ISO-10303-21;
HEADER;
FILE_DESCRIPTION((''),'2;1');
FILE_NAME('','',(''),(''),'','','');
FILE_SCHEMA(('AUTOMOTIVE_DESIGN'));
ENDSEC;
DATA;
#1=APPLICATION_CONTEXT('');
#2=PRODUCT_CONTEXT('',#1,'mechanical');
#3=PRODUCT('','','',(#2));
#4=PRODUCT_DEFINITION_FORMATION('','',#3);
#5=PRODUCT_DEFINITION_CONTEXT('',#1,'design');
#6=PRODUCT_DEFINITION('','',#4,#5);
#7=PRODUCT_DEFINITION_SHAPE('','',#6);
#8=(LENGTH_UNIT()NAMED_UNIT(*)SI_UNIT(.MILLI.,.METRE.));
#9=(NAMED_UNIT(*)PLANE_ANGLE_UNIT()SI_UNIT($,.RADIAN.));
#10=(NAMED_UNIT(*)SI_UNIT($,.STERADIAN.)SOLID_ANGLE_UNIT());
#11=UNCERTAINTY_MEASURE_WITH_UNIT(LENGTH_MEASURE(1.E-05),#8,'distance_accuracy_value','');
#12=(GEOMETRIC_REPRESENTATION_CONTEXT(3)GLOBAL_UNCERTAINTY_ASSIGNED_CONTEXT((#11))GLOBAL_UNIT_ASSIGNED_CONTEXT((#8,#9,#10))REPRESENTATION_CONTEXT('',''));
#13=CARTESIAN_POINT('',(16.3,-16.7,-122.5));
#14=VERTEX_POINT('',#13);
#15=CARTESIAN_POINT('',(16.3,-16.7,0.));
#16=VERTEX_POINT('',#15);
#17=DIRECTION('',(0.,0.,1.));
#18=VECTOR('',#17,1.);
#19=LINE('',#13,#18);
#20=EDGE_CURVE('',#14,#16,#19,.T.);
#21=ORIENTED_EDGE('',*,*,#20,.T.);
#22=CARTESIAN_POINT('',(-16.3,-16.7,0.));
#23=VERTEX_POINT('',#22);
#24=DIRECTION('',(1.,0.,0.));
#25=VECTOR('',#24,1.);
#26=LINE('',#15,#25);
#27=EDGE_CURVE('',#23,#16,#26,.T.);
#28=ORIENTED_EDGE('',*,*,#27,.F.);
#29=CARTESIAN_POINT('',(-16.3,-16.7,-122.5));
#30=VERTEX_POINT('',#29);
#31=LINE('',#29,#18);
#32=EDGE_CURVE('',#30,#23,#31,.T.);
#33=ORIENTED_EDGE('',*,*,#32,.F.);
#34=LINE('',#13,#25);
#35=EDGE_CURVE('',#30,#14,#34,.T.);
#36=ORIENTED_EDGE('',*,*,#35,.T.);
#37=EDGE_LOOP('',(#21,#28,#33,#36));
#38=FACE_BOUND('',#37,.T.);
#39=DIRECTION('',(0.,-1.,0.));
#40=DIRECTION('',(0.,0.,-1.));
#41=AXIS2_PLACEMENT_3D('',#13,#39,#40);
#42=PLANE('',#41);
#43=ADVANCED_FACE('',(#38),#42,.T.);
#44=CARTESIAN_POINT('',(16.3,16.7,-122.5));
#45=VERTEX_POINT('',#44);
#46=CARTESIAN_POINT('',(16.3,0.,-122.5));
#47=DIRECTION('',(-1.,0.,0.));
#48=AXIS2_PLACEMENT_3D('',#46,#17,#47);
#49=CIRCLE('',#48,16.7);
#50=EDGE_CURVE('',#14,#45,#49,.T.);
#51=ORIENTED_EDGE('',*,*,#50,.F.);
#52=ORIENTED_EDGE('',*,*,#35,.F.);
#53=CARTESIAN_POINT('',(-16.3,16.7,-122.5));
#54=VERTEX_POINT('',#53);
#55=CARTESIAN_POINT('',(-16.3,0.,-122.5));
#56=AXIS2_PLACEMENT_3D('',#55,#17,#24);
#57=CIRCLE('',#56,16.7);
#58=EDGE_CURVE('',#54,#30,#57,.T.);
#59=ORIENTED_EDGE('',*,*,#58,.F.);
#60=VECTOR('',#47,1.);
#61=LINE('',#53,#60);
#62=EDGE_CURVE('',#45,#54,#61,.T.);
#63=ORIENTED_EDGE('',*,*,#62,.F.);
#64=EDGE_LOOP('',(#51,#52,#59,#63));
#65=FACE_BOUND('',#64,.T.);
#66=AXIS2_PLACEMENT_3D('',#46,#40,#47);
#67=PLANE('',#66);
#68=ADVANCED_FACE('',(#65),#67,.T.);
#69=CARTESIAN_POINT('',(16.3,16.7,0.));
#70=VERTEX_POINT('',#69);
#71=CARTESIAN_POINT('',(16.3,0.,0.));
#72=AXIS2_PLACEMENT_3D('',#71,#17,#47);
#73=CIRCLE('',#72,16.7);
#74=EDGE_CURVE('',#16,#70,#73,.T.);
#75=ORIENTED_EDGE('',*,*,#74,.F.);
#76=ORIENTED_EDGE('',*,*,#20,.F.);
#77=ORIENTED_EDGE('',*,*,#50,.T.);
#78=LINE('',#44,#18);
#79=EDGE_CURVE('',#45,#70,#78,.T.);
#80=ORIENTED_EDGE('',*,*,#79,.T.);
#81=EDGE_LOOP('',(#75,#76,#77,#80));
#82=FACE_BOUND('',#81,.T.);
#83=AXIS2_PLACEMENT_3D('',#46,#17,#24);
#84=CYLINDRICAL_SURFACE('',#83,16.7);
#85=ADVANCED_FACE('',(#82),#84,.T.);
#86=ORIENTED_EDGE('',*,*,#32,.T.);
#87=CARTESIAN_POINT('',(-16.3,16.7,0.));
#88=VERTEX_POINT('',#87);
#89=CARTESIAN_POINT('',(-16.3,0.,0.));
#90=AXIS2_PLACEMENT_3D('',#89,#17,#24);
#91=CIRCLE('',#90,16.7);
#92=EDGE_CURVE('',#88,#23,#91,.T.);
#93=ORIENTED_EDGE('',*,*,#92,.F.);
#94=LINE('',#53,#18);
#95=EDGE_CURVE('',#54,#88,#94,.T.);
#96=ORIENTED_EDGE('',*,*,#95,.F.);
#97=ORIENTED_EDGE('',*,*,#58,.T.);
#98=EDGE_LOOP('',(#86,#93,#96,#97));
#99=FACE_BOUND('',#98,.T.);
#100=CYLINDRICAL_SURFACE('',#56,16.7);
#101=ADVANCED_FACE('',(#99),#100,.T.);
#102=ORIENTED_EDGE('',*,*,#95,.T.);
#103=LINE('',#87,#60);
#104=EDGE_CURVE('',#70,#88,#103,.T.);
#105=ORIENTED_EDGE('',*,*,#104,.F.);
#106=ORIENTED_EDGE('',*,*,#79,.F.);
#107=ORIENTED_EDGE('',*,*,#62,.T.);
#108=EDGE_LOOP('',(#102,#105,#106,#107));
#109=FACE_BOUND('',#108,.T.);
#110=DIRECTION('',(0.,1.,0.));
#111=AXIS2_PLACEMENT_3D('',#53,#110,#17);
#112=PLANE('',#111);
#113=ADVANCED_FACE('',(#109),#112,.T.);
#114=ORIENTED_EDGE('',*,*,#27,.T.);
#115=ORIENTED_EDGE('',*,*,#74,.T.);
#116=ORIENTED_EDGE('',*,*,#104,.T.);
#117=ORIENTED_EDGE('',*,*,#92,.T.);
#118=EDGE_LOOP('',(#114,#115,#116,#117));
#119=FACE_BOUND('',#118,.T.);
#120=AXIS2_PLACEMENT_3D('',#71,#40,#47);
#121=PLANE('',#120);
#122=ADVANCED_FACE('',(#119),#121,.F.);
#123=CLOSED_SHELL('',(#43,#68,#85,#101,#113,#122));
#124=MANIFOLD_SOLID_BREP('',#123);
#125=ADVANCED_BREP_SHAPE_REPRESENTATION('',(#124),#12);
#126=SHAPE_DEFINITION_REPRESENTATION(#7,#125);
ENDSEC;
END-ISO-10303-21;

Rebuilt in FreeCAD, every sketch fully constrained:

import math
import FreeCAD as App
import Part
import Sketcher
Q = App.Units.Quantity

doc = App.newDocument("Part")
params = doc.addObject("Spreadsheet::Sheet", "Params")
for row, (alias, value) in enumerate([
    ("sketch1_radius", "16.7 mm"),
    ("sketch1_width", "32.6 mm"),
    ("pad1_length", "122.5 mm"),
], start=1):
    params.set(f"A{row}", alias)
    params.set(f"B{row}", "=" + value)
    params.setAlias(f"B{row}", alias)

body = doc.addObject("PartDesign::Body", "Body")

sketch1 = body.newObject("Sketcher::SketchObject", "Sketch")
sketch1.AttachmentSupport = (doc.getObject("XY_Plane"), [""])
sketch1.MapMode = "FlatFace"
sketch1.addGeometry([
    Part.LineSegment(App.Vector(16, 17, 0), App.Vector(-16, 17, 0)),
    Part.ArcOfCircle(Part.Circle(App.Vector(-16, 0, 0), App.Vector(0, 0, 1), 17), math.radians(90), math.radians(270)),
    Part.LineSegment(App.Vector(-16, -17, 0), App.Vector(16, -17, 0)),
    Part.ArcOfCircle(Part.Circle(App.Vector(16, 0, 0), App.Vector(0, 0, 1), 17), math.radians(-90), math.radians(90)),
], False)
sketch1.addConstraint([
    Sketcher.Constraint("Tangent", 0, 2, 1, 1),
    Sketcher.Constraint("Tangent", 1, 2, 2, 1),
    Sketcher.Constraint("Tangent", 2, 2, 3, 1),
    Sketcher.Constraint("Tangent", 3, 2, 0, 1),
    Sketcher.Constraint("Horizontal", 0),
    Sketcher.Constraint("Horizontal", 2),
    Sketcher.Constraint("Symmetric", 1, 3, 3, 3, -1, 1),
    Sketcher.Constraint("Radius", 1, Q("16.7 mm")),
    Sketcher.Constraint("DistanceX", 0, 2, 0, 1, Q("32.6 mm")),
])
sketch1.setExpression("Constraints[7]", "Params.sketch1_radius")
sketch1.setExpression("Constraints[8]", "Params.sketch1_width")
pad1 = body.newObject("PartDesign::Pad", "Pad")
pad1.Profile = sketch1
pad1.setExpression("Length", "Params.pad1_length")
pad1.Reversed = True

doc.recompute()
